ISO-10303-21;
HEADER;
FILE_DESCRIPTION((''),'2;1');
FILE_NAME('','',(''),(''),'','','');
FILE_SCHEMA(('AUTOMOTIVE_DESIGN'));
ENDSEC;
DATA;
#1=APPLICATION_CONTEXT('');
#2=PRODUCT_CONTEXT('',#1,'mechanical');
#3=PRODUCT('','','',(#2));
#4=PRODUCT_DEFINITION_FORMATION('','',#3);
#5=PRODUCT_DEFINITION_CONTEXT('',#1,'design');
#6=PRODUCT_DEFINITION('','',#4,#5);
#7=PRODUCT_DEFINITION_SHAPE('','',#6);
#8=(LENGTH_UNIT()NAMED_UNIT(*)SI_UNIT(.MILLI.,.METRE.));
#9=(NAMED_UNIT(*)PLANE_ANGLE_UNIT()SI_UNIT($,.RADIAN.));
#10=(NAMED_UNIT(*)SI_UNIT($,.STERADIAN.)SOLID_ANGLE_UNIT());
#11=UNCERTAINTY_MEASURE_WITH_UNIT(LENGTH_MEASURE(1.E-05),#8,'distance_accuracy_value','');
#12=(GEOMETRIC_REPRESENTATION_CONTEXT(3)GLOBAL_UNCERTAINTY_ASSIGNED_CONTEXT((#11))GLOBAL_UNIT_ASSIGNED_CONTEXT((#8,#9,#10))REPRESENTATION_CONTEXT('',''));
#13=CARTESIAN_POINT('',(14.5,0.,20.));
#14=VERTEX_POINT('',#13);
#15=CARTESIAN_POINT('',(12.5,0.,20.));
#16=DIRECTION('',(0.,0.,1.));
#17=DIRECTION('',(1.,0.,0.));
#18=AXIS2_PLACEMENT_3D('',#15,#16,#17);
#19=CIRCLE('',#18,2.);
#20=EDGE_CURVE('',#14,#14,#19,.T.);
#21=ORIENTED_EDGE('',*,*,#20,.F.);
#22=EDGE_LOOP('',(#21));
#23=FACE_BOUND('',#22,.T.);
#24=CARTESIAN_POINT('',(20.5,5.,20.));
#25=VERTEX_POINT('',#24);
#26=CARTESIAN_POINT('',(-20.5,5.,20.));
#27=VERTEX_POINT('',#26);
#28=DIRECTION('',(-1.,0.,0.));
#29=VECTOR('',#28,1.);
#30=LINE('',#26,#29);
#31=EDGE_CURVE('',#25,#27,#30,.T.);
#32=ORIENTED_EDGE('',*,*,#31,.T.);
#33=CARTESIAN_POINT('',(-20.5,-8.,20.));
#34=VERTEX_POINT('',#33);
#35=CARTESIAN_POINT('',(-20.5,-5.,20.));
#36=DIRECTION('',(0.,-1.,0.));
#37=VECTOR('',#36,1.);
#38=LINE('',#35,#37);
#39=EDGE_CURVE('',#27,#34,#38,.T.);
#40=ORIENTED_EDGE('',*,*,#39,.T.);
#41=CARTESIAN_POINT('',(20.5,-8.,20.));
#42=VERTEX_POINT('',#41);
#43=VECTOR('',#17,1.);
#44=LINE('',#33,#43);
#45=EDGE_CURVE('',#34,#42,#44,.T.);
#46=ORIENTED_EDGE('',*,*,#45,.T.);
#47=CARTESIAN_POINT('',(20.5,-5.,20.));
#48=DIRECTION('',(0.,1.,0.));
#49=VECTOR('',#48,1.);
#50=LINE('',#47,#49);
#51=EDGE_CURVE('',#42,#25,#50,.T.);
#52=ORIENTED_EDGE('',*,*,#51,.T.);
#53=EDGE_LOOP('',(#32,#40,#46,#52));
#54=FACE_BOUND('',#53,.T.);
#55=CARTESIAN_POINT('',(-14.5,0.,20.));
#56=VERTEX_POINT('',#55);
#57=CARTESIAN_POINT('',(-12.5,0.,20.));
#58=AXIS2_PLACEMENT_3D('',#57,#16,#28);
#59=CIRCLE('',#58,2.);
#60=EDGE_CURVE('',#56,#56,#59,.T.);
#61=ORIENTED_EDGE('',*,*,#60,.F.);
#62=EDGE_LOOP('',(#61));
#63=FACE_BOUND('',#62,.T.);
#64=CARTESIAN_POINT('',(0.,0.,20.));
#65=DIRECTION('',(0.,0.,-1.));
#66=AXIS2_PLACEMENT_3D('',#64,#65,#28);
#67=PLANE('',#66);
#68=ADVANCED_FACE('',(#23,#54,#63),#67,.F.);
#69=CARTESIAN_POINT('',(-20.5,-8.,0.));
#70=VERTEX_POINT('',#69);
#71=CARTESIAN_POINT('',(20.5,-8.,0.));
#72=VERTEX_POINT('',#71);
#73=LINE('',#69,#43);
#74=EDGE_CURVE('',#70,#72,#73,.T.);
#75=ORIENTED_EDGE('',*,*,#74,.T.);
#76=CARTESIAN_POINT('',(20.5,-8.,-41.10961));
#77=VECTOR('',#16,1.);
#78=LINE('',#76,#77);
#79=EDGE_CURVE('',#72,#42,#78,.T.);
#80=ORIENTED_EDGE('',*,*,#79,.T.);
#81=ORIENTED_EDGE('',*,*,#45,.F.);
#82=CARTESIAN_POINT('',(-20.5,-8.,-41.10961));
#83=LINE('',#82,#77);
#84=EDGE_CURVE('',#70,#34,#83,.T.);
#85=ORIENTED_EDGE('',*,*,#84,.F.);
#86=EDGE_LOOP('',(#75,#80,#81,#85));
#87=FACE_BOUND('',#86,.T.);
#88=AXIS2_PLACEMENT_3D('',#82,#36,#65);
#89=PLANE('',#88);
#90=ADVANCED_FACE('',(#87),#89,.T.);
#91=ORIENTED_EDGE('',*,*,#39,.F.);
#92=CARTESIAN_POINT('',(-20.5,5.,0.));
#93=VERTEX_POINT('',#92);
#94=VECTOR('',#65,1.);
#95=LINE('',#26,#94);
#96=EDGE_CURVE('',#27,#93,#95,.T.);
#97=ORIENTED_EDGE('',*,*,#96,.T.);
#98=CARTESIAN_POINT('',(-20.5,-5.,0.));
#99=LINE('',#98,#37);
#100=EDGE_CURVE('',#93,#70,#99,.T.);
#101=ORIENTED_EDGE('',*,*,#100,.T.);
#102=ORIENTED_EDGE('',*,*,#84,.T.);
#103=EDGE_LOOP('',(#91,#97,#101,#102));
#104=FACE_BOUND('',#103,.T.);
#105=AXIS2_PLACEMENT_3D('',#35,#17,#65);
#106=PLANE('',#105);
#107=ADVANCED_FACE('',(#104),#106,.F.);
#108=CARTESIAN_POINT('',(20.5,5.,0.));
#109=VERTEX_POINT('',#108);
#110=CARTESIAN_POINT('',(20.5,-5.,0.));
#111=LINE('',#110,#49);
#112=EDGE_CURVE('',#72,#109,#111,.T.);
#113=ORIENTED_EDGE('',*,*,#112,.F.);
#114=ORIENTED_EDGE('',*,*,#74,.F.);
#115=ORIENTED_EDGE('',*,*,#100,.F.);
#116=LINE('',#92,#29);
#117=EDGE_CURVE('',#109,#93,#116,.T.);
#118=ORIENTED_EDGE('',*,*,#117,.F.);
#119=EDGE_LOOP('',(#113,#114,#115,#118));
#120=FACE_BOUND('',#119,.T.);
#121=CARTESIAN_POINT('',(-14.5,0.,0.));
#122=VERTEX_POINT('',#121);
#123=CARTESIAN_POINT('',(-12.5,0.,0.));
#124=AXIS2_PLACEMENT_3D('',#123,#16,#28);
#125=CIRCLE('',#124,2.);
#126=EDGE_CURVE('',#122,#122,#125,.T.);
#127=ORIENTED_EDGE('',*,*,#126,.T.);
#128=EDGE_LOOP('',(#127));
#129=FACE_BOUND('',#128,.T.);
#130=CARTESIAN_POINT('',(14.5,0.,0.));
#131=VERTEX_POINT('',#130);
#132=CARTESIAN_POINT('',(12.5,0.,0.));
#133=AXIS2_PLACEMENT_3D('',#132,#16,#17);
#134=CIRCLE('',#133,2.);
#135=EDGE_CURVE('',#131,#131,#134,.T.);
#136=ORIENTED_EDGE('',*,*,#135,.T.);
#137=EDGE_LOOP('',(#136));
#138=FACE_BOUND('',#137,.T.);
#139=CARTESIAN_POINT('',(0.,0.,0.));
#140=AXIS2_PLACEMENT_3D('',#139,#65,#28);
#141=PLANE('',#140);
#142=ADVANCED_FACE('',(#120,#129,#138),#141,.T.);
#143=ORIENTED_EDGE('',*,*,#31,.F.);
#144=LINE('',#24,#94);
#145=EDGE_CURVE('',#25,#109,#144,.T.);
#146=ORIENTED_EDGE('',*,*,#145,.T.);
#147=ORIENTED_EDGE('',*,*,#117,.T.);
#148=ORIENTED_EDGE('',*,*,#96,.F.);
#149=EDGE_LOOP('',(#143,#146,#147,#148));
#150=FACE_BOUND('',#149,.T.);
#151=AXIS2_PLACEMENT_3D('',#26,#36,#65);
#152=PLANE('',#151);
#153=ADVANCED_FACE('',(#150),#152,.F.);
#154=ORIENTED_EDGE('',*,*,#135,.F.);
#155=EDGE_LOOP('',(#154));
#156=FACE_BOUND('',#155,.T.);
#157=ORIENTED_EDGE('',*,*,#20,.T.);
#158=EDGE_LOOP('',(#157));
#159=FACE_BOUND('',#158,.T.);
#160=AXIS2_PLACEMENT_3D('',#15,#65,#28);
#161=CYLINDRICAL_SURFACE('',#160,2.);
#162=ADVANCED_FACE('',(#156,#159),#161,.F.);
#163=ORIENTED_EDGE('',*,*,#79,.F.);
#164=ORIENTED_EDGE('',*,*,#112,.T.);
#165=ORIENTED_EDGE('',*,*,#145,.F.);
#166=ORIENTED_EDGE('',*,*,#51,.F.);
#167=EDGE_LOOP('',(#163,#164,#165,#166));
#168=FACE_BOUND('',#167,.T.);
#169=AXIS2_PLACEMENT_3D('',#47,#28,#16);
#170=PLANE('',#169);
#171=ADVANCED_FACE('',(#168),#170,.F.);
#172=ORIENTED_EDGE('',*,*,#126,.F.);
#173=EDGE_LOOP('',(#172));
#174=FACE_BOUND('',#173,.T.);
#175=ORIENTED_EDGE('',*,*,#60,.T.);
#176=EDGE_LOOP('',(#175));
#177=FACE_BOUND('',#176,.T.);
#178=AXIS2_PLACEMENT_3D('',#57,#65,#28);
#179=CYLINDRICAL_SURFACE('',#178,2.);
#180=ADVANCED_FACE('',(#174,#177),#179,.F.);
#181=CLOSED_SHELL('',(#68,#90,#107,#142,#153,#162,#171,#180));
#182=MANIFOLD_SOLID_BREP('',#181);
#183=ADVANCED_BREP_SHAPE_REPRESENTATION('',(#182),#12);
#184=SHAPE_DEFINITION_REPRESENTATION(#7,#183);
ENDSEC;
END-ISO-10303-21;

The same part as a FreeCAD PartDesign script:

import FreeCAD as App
import Part
import Sketcher
from FreeCAD import Vector

doc = App.newDocument("Part")
params = doc.addObject("Spreadsheet::Sheet", "Params")
for row, (alias, value) in enumerate([
    ("sketch1_diameter", "4 mm"),
    ("sketch1_width", "41 mm"),
    ("sketch1_height", "10 mm"),
    ("pad1_length", "20 mm"),
    ("sketch2_width", "41 mm"),
    ("sketch2_height", "3 mm"),
    ("pad2_length", "20 mm"),
], start=1):
    params.set(f"A{row}", alias)
    params.set(f"B{row}", "=" + value)
    params.setAlias(f"B{row}", alias)

body = doc.addObject("PartDesign::Body", "Body")

# Sketch on XY plane
sketch1 = body.newObject("Sketcher::SketchObject", "Sketch")
sketch1.AttachmentSupport = (doc.getObject("XY_Plane"), [""])
sketch1.MapMode = "FlatFace"
sketch1.addGeometry(Part.LineSegment(Vector(-20.5, 5, 0), Vector(-20.5, -5, 0)), False)
sketch1.addGeometry(Part.LineSegment(Vector(-20.5, -5, 0), Vector(20.5, -5, 0)), False)
sketch1.addGeometry(Part.LineSegment(Vector(20.5, -5, 0), Vector(20.5, 5, 0)), False)
sketch1.addGeometry(Part.LineSegment(Vector(20.5, 5, 0), Vector(-20.5, 5, 0)), False)
sketch1.addGeometry(Part.Circle(Vector(-12.5, 0, 0), Vector(0, 0, 1), 2), False)
sketch1.addGeometry(Part.Circle(Vector(12.5, 0, 0), Vector(0, 0, 1), 2), False)
sketch1.addConstraint(Sketcher.Constraint("Coincident", 0, 2, 1, 1))
sketch1.addConstraint(Sketcher.Constraint("Coincident", 1, 2, 2, 1))
sketch1.addConstraint(Sketcher.Constraint("Coincident", 2, 2, 3, 1))
sketch1.addConstraint(Sketcher.Constraint("Coincident", 3, 2, 0, 1))
sketch1.addConstraint(Sketcher.Constraint("Vertical", 0))
sketch1.addConstraint(Sketcher.Constraint("Horizontal", 1))
sketch1.addConstraint(Sketcher.Constraint("Vertical", 2))
sketch1.addConstraint(Sketcher.Constraint("Horizontal", 3))
sketch1.addConstraint(Sketcher.Constraint("Equal", 4, 5))
sketch1.addConstraint(Sketcher.Constraint("Symmetric", 4, 3, 5, 3, -1, 1))
sketch1.addConstraint(Sketcher.Constraint("Symmetric", 0, 2, 2, 2, -1, 1))
sketch1.addConstraint(Sketcher.Constraint("PointOnObject", 4, 3, -1))
sketch1.addConstraint(Sketcher.Constraint("Diameter", 4, 4.0))
sketch1.addConstraint(Sketcher.Constraint("DistanceX", 1, 1, 1, 2, 41.0))
sketch1.addConstraint(Sketcher.Constraint("DistanceY", 0, 2, 0, 1, 10.0))
sketch1.addConstraint(Sketcher.Constraint("DistanceX", 4, 3, 5, 3, 25.0))
sketch1.setExpression("Constraints[12]", "Params.sketch1_diameter")
sketch1.setExpression("Constraints[13]", "Params.sketch1_width")
sketch1.setExpression("Constraints[14]", "Params.sketch1_height")
pad1 = body.newObject("PartDesign::Pad", "Pad")
pad1.Profile = sketch1
pad1.setExpression("Length", "Params.pad1_length")

# Sketch on XY plane
sketch2 = body.newObject("Sketcher::SketchObject", "Sketch001")
sketch2.AttachmentSupport = (doc.getObject("XY_Plane"), [""])
sketch2.MapMode = "FlatFace"
sketch2.AttachmentOffset = App.Placement(Vector(0, 0, 20), App.Rotation())
sketch2.addGeometry(Part.LineSegment(Vector(-20.5, -5, 0), Vector(-20.5, -8, 0)), False)
sketch2.addGeometry(Part.LineSegment(Vector(-20.5, -8, 0), Vector(20.5, -8, 0)), False)
sketch2.addGeometry(Part.LineSegment(Vector(20.5, -8, 0), Vector(20.5, -5, 0)), False)
sketch2.addGeometry(Part.LineSegment(Vector(20.5, -5, 0), Vector(-20.5, -5, 0)), False)
sketch2.addConstraint(Sketcher.Constraint("Coincident", 0, 2, 1, 1))
sketch2.addConstraint(Sketcher.Constraint("Coincident", 1, 2, 2, 1))
sketch2.addConstraint(Sketcher.Constraint("Coincident", 2, 2, 3, 1))
sketch2.addConstraint(Sketcher.Constraint("Coincident", 3, 2, 0, 1))
sketch2.addConstraint(Sketcher.Constraint("Vertical", 0))
sketch2.addConstraint(Sketcher.Constraint("Horizontal", 1))
sketch2.addConstraint(Sketcher.Constraint("Vertical", 2))
sketch2.addConstraint(Sketcher.Constraint("Horizontal", 3))
sketch2.addConstraint(Sketcher.Constraint("DistanceX", 1, 1, 1, 2, 41.0))
sketch2.addConstraint(Sketcher.Constraint("DistanceY", 0, 2, 0, 1, 3.0))
sketch2.addConstraint(Sketcher.Constraint("DistanceY", 0, 2, -1, 1, 8.0))
sketch2.addConstraint(Sketcher.Constraint("DistanceX", 0, 2, -1, 1, 20.5))
sketch2.setExpression("Constraints[8]", "Params.sketch2_width")
sketch2.setExpression("Constraints[9]", "Params.sketch2_height")
pad2 = body.newObject("PartDesign::Pad", "Pad001")
pad2.Profile = sketch2
pad2.setExpression("Length", "Params.pad2_length")
pad2.Reversed = True

doc.recompute()
